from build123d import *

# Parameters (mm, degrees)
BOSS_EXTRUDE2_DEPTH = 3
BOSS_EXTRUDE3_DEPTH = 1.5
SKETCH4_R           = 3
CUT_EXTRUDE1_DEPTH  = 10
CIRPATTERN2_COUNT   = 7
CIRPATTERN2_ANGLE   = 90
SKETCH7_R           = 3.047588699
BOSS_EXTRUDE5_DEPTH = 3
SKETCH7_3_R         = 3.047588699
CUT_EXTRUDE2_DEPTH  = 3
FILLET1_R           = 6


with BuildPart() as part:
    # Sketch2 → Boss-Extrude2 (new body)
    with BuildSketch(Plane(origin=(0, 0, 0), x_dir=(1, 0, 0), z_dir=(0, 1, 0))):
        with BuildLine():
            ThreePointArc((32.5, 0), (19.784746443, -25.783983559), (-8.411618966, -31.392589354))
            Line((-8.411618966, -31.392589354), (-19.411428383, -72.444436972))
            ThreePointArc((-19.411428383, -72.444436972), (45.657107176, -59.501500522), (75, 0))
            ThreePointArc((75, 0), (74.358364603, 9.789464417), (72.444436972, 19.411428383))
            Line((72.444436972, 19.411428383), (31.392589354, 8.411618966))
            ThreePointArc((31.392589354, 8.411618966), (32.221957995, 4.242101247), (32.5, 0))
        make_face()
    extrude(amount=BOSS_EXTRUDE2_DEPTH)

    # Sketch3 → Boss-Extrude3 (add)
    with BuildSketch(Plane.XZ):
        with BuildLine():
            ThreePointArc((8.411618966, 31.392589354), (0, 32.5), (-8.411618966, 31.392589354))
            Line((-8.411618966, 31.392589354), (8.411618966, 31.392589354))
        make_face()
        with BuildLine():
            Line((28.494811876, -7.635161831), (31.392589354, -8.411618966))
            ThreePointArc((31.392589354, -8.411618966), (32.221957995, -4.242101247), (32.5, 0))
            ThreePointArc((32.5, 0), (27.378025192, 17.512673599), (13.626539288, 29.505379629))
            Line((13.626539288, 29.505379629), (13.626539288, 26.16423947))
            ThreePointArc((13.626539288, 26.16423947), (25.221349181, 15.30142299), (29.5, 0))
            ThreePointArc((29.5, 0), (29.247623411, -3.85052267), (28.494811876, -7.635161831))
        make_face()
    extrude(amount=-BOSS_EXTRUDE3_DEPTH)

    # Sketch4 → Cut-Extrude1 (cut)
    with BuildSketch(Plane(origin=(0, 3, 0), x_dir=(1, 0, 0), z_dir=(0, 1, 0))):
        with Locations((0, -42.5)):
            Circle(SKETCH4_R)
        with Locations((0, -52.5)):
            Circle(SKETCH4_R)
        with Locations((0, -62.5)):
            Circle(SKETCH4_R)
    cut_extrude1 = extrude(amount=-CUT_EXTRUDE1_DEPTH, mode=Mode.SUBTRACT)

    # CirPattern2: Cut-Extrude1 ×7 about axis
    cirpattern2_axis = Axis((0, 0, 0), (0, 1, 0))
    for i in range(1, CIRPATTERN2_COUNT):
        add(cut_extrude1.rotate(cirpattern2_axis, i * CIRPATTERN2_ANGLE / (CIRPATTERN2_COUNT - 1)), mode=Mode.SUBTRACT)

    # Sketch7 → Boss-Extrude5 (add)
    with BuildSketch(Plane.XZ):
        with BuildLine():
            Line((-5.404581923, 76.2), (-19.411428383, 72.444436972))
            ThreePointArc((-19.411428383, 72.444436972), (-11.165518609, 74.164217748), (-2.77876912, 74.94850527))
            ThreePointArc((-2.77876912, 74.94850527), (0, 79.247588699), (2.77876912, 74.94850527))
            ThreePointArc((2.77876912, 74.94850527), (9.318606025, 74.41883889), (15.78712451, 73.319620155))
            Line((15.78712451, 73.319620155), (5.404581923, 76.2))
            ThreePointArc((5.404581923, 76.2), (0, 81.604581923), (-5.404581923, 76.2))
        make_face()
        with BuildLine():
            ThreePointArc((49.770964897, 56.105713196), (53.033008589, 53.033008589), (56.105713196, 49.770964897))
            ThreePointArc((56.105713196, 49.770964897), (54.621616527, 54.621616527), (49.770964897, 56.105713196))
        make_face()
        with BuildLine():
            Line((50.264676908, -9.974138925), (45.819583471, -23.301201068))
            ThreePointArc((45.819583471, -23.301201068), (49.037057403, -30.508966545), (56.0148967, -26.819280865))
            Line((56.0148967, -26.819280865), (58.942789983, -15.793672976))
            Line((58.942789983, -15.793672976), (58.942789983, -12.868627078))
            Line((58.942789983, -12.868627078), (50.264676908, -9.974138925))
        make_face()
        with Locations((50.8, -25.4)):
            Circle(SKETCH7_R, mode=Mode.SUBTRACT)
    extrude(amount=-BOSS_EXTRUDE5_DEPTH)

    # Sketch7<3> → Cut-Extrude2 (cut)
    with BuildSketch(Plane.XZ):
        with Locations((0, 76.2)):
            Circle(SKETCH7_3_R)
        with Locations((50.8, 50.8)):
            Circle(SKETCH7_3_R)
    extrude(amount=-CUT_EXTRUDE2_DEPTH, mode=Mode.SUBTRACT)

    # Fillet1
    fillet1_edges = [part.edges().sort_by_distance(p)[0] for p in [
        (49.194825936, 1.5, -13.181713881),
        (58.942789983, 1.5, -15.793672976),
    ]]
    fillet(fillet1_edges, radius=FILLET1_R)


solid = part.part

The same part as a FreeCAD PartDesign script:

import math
import FreeCAD as App
import Part
import Sketcher
from FreeCAD import Vector
Q = App.Units.Quantity


def edges_at(feature, points):
    """Names of the edges that pass closest to the given points."""
    edges = feature.Shape.Edges
    near = lambda p: min(range(len(edges)), key=lambda i: edges[i].distToShape(Part.Vertex(*p))[0])
    return sorted({f"Edge{near(p) + 1}" for p in points})

doc = App.newDocument("Part")
params = doc.addObject("Spreadsheet::Sheet", "Params")
for row, (alias, value) in enumerate([
    ("sketch1_radius", "75 mm"),
    ("sketch1_radius2", "32.5 mm"),
    ("pad1_length", "3 mm"),
    ("sketch2_radius", "32.5 mm"),
    ("sketch2_radius2", "29.5 mm"),
    ("pad2_length", "1.5 mm"),
    ("sketch3_diameter", "6 mm"),
    ("pocket1_length", "10 mm"),
    ("sketch4_radius", "75 mm"),
    ("pad3_length", "3 mm"),
    ("pocket2_length", "3 mm"),
    ("fillet_radius", "6 mm"),
], start=1):
    params.set(f"A{row}", alias)
    params.set(f"B{row}", "=" + value)
    params.setAlias(f"B{row}", alias)

body = doc.addObject("PartDesign::Body", "Body")

# Sketch on XZ plane
sketch1 = body.newObject("Sketcher::SketchObject", "Sketch")
sketch1.AttachmentSupport = (doc.getObject("XZ_Plane"), [""])
sketch1.MapMode = "FlatFace"
sketch1.addGeometry(Part.ArcOfCircle(Part.Circle(Vector(0, 0, 0), Vector(0, 0, 1), 32), math.radians(0), math.radians(105)), False)
sketch1.addGeometry(Part.LineSegment(Vector(-8, 31, 0), Vector(-19, 72, 0)), False)
sketch1.addGeometry(Part.ArcOfCircle(Part.Circle(Vector(0, 0, 0), Vector(0, 0, 1), 75), math.radians(0), math.radians(105)), False)
sketch1.addGeometry(Part.ArcOfCircle(Part.Circle(Vector(0, 0, 0), Vector(0, 0, 1), 75), math.radians(-15), math.radians(0)), False)
sketch1.addGeometry(Part.LineSegment(Vector(72, -19, 0), Vector(31, -8, 0)), False)
sketch1.addGeometry(Part.ArcOfCircle(Part.Circle(Vector(0, 0, 0), Vector(0, 0, 1), 32), math.radians(-15), math.radians(0)), False)
sketch1.addConstraint(Sketcher.Constraint("Coincident", 0, 2, 1, 1))
sketch1.addConstraint(Sketcher.Constraint("Coincident", 1, 2, 2, 2))
sketch1.addConstraint(Sketcher.Constraint("Tangent", 2, 1, 3, 2))
sketch1.addConstraint(Sketcher.Constraint("Coincident", 3, 1, 4, 1))
sketch1.addConstraint(Sketcher.Constraint("Coincident", 4, 2, 5, 1))
sketch1.addConstraint(Sketcher.Constraint("Tangent", 5, 2, 0, 1))
sketch1.addConstraint(Sketcher.Constraint("Coincident", 0, 3, -1, 1))
sketch1.addConstraint(Sketcher.Constraint("Coincident", 2, 3, -1, 1))
sketch1.addConstraint(Sketcher.Constraint("Equal", 2, 3))
sketch1.addConstraint(Sketcher.Constraint("Equal", 0, 5))
sketch1.addConstraint(Sketcher.Constraint("PointOnObject", 2, 1, -1))
sketch1.addConstraint(Sketcher.Constraint("PointOnObject", 5, 2, -1))
sketch1.addConstraint(Sketcher.Constraint("Radius", 2, Q("75 mm")))
sketch1.addConstraint(Sketcher.Constraint("Radius", 0, Q("32.5 mm")))
sketch1.addConstraint(Sketcher.Constraint("Angle", 1, Q("105 deg")))
sketch1.addConstraint(Sketcher.Constraint("Angle", 4, Q("165 deg")))
sketch1.addConstraint(Sketcher.Constraint("DistanceX", 0, 2, -1, 1, Q("8.411619 mm")))
sketch1.addConstraint(Sketcher.Constraint("DistanceY", 3, 1, -1, 1, Q("19.411428 mm")))
sketch1.setExpression("Constraints[12]", "Params.sketch1_radius")
sketch1.setExpression("Constraints[13]", "Params.sketch1_radius2")
pad1 = body.newObject("PartDesign::Pad", "Pad")
pad1.Profile = sketch1
pad1.setExpression("Length", "Params.pad1_length")
pad1.Reversed = True

# Sketch on XZ plane
sketch2 = body.newObject("Sketcher::SketchObject", "Sketch001")
sketch2.AttachmentSupport = (doc.getObject("XZ_Plane"), [""])
sketch2.MapMode = "FlatFace"
sketch2.addGeometry(Part.ArcOfCircle(Part.Circle(Vector(0, 0, 0), Vector(0, 0, 1), 32.5), math.radians(75), math.radians(105)), False)
sketch2.addGeometry(Part.LineSegment(Vector(-8.4, 31.4, 0), Vector(8.4, 31.4, 0)), False)
sketch2.addGeometry(Part.LineSegment(Vector(28.5, -7.6, 0), Vector(31.4, -8.4, 0)), False)
sketch2.addGeometry(Part.ArcOfCircle(Part.Circle(Vector(0, 0, 0), Vector(0, 0, 1), 32.5), math.radians(-15), math.radians(0)), False)
sketch2.addGeometry(Part.ArcOfCircle(Part.Circle(Vector(0, 0, 0), Vector(0, 0, 1), 32.5), math.radians(0), math.radians(65)), False)
sketch2.addGeometry(Part.LineSegment(Vector(13.6, 29.5, 0), Vector(13.6, 26.2, 0)), False)
sketch2.addGeometry(Part.ArcOfCircle(Part.Circle(Vector(0, 0, 0), Vector(0, 0, 1), 29.5), math.radians(0), math.radians(62)), False)
sketch2.addGeometry(Part.ArcOfCircle(Part.Circle(Vector(0, 0, 0), Vector(0, 0, 1), 29.5), math.radians(-15), math.radians(0)), False)
sketch2.addConstraint(Sketcher.Constraint("Coincident", 0, 1, 1, 2))
sketch2.addConstraint(Sketcher.Constraint("Coincident", 1, 1, 0, 2))
sketch2.addConstraint(Sketcher.Constraint("Coincident", 2, 2, 3, 1))
sketch2.addConstraint(Sketcher.Constraint("Tangent", 3, 2, 4, 1))
sketch2.addConstraint(Sketcher.Constraint("Coincident", 4, 2, 5, 1))
sketch2.addConstraint(Sketcher.Constraint("Coincident", 5, 2, 6, 2))
sketch2.addConstraint(Sketcher.Constraint("Tangent", 6, 1, 7, 2))
sketch2.addConstraint(Sketcher.Constraint("Coincident", 7, 1, 2, 1))
sketch2.addConstraint(Sketcher.Constraint("Horizontal", 1))
sketch2.addConstraint(Sketcher.Constraint("Vertical", 5))
sketch2.addConstraint(Sketcher.Constraint("Coincident", 0, 3, -1, 1))
sketch2.addConstraint(Sketcher.Constraint("Coincident", 3, 3, -1, 1))
sketch2.addConstraint(Sketcher.Constraint("Coincident", 6, 3, -1, 1))
sketch2.addConstraint(Sketcher.Constraint("Equal", 0, 3))
sketch2.addConstraint(Sketcher.Constraint("Equal", 3, 4))
sketch2.addConstraint(Sketcher.Constraint("Equal", 6, 7))
sketch2.addConstraint(Sketcher.Constraint("PointOnObject", 3, 2, -1))
sketch2.addConstraint(Sketcher.Constraint("PointOnObject", 6, 1, -1))
sketch2.addConstraint(Sketcher.Constraint("Radius", 0, Q("32.5 mm")))
sketch2.addConstraint(Sketcher.Constraint("Radius", 6, Q("29.5 mm")))
sketch2.addConstraint(Sketcher.Constraint("Angle", 2, Q("-15 deg")))
sketch2.addConstraint(Sketcher.Constraint("DistanceY", 5, 2, 5, 1, Q("3.34114 mm")))
sketch2.addConstraint(Sketcher.Constraint("DistanceX", 1, 1, 1, 2, Q("16.823238 mm")))
sketch2.addConstraint(Sketcher.Constraint("DistanceX", -1, 1, 2, 2, Q("31.392589 mm")))
sketch2.setExpression("Constraints[18]", "Params.sketch2_radius")
sketch2.setExpression("Constraints[19]", "Params.sketch2_radius2")
pad2 = body.newObject("PartDesign::Pad", "Pad001")
pad2.Profile = sketch2
pad2.setExpression("Length", "Params.pad2_length")
pad2.Reversed = True

# Sketch on XZ plane
sketch3 = body.newObject("Sketcher::SketchObject", "Sketch002")
sketch3.AttachmentSupport = (doc.getObject("XZ_Plane"), [""])
sketch3.MapMode = "FlatFace"
sketch3.AttachmentOffset = App.Placement(Vector(0, 0, -3), App.Rotation())
sketch3.addGeometry(Part.Circle(Vector(0, 42.5, 0), Vector(0, 0, 1), 3), False)
sketch3.addGeometry(Part.Circle(Vector(0, 52.5, 0), Vector(0, 0, 1), 3), False)
sketch3.addGeometry(Part.Circle(Vector(0, 62.5, 0), Vector(0, 0, 1), 3), False)
sketch3.addConstraint(Sketcher.Constraint("Equal", 0, 1))
sketch3.addConstraint(Sketcher.Constraint("Equal", 1, 2))
sketch3.addConstraint(Sketcher.Constraint("PointOnObject", 0, 3, -2))
sketch3.addConstraint(Sketcher.Constraint("PointOnObject", 1, 3, -2))
sketch3.addConstraint(Sketcher.Constraint("PointOnObject", 2, 3, -2))
sketch3.addConstraint(Sketcher.Constraint("Diameter", 0, Q("6 mm")))
sketch3.addConstraint(Sketcher.Constraint("DistanceY", 0, 3, 1, 3, Q("10 mm")))
sketch3.addConstraint(Sketcher.Constraint("DistanceY", 1, 3, 2, 3, Q("10 mm")))
sketch3.addConstraint(Sketcher.Constraint("DistanceY", -1, 1, 0, 3, Q("42.5 mm")))
sketch3.setExpression("Constraints[5]", "Params.sketch3_diameter")
pocket1 = body.newObject("PartDesign::Pocket", "Pocket")
pocket1.Profile = sketch3
pocket1.setExpression("Length", "Params.pocket1_length")
pocket1.Reversed = True
doc.recompute()

polarpattern = body.newObject("PartDesign::PolarPattern", "PolarPattern")
polarpattern.Originals = [pocket1]
polarpattern.Axis = (doc.getObject("Y_Axis"), [""])
polarpattern.Angle = 90
polarpattern.Occurrences = 7
body.Tip = polarpattern

# Sketch on XZ plane
sketch4 = body.newObject("Sketcher::SketchObject", "Sketch003")
sketch4.AttachmentSupport = (doc.getObject("XZ_Plane"), [""])
sketch4.MapMode = "FlatFace"
sketch4.addGeometry(Part.LineSegment(Vector(-5.4, 76.2, 0), Vector(-19.4, 72.4, 0)), False)
sketch4.addGeometry(Part.ArcOfCircle(Part.Circle(Vector(0, 0, 0), Vector(0, 0, 1), 75), math.radians(92.12), math.radians(105)), False)
sketch4.addGeometry(Part.ArcOfCircle(Part.Circle(Vector(0, 76.2, 0), Vector(0, 0, 1), 3), math.radians(-24), math.radians(204)), False)
sketch4.addGeometry(Part.ArcOfCircle(Part.Circle(Vector(0, 0, 0), Vector(0, 0, 1), 75), math.radians(77.85), math.radians(87.88)), False)
sketch4.addGeometry(Part.LineSegment(Vector(15.8, 73.3, 0), Vector(5.4, 76.2, 0)), False)
sketch4.addGeometry(Part.ArcOfCircle(Part.Circle(Vector(0, 76.2, 0), Vector(0, 0, 1), 5.4), math.radians(0), math.radians(180)), False)
sketch4.addGeometry(Part.ArcOfCircle(Part.Circle(Vector(0, 0, 0), Vector(0, 0, 1), 75), math.radians(41.58), math.radians(48.42)), False)
sketch4.addGeometry(Part.ArcOfCircle(Part.Circle(Vector(50.8, 50.8, 0), Vector(0, 0, 1), 5.4), math.radians(-11), math.radians(101)), False)
sketch4.addGeometry(Part.LineSegment(Vector(50.3, -10, 0), Vector(45.8, -23.3, 0)), False)
sketch4.addGeometry(Part.ArcOfCircle(Part.Circle(Vector(50.8, -25.4, 0), Vector(0, 0, 1), 5.4), math.radians(157), math.radians(345)), False)
sketch4.addGeometry(Part.LineSegment(Vector(56, -26.8, 0), Vector(58.9, -15.8, 0)), False)
sketch4.addGeometry(Part.LineSegment(Vector(58.9, -15.8, 0), Vector(58.9, -12.9, 0)), False)
sketch4.addGeometry(Part.LineSegment(Vector(58.9, -12.9, 0), Vector(50.3, -10, 0)), False)
sketch4.addGeometry(Part.Circle(Vector(50.8, -25.4, 0), Vector(0, 0, 1), 3), False)
sketch4.addConstraint(Sketcher.Constraint("Coincident", 0, 2, 1, 2))
sketch4.addConstraint(Sketcher.Constraint("Coincident", 1, 1, 2, 2))
sketch4.addConstraint(Sketcher.Constraint("Coincident", 2, 1, 3, 2))
sketch4.addConstraint(Sketcher.Constraint("Coincident", 3, 1, 4, 1))
sketch4.addConstraint(Sketcher.Constraint("Coincident", 4, 2, 5, 1))
sketch4.addConstraint(Sketcher.Constraint("Coincident", 5, 2, 0, 1))
sketch4.addConstraint(Sketcher.Constraint("Coincident", 6, 1, 7, 1))
sketch4.addConstraint(Sketcher.Constraint("Coincident", 7, 2, 6, 2))
sketch4.addConstraint(Sketcher.Constraint("Coincident", 8, 2, 9, 1))
sketch4.addConstraint(Sketcher.Constraint("Coincident", 9, 2, 10, 1))
sketch4.addConstraint(Sketcher.Constraint("Coincident", 10, 2, 11, 1))
sketch4.addConstraint(Sketcher.Constraint("Coincident", 11, 2, 12, 1))
sketch4.addConstraint(Sketcher.Constraint("Coincident", 12, 2, 8, 1))
sketch4.addConstraint(Sketcher.Constraint("Vertical", 11))
sketch4.addConstraint(Sketcher.Constraint("Coincident", 1, 3, -1, 1))
sketch4.addConstraint(Sketcher.Constraint("Coincident", 3, 3, -1, 1))
sketch4.addConstraint(Sketcher.Constraint("Coincident", 6, 3, -1, 1))
sketch4.addConstraint(Sketcher.Constraint("Coincident", 5, 3, 2, 3))
sketch4.addConstraint(Sketcher.Constraint("Coincident", 13, 3, 9, 3))
sketch4.addConstraint(Sketcher.Constraint("Equal", 1, 3))
sketch4.addConstraint(Sketcher.Constraint("Equal", 3, 6))
sketch4.addConstraint(Sketcher.Constraint("Equal", 5, 7))
sketch4.addConstraint(Sketcher.Constraint("Equal", 7, 9))
sketch4.addConstraint(Sketcher.Constraint("Equal", 2, 13))
sketch4.addConstraint(Sketcher.Constraint("Symmetric", 4, 2, 5, 2, -2))
sketch4.addConstraint(Sketcher.Constraint("Perpendicular", 8, 12))
sketch4.addConstraint(Sketcher.Constraint("Horizontal", 5, 3, 4, 2))
sketch4.addConstraint(Sketcher.Constraint("Vertical", 7, 3, 9, 3))
sketch4.addConstraint(Sketcher.Constraint("Radius", 1, Q("75 mm")))
sketch4.addConstraint(Sketcher.Constraint("DistanceY", -1, 1, 2, 3, Q("76.2 mm")))
sketch4.addConstraint(Sketcher.Constraint("DistanceX", -1, 1, 7, 3, Q("50.8 mm")))
sketch4.addConstraint(Sketcher.Constraint("DistanceY", -1, 1, 7, 3, Q("50.8 mm")))
sketch4.addConstraint(Sketcher.Constraint("DistanceY", 9, 3, -1, 1, Q("25.4 mm")))
sketch4.addConstraint(Sketcher.Constraint("Radius", 2, Q("3.047589 mm")))
sketch4.addConstraint(Sketcher.Constraint("Radius", 5, Q("5.404582 mm")))
sketch4.addConstraint(Sketcher.Constraint("Distance", 12, Q("9.148099 mm")))
sketch4.addConstraint(Sketcher.Constraint("DistanceY", 8, 2, -1, 1, Q("23.301201 mm")))
sketch4.addConstraint(Sketcher.Constraint("DistanceY", 11, 1, 11, 2, Q("2.925046 mm")))
sketch4.addConstraint(Sketcher.Constraint("DistanceX", 0, 2, -1, 1, Q("19.411428 mm")))
sketch4.addConstraint(Sketcher.Constraint("DistanceY", -1, 1, 3, 1, Q("73.31962 mm")))
sketch4.addConstraint(Sketcher.Constraint("DistanceY", 9, 2, -1, 1, Q("26.819281 mm")))
sketch4.addConstraint(Sketcher.Constraint("DistanceX", -1, 1, 10, 2, Q("58.94279 mm")))
sketch4.addConstraint(Sketcher.Constraint("DistanceY", 12, 2, -1, 1, Q("9.974139 mm")))
sketch4.setExpression("Constraints[28]", "Params.sketch4_radius")
pad3 = body.newObject("PartDesign::Pad", "Pad002")
pad3.Profile = sketch4
pad3.setExpression("Length", "Params.pad3_length")
pad3.Reversed = True

# Sketch on XZ plane
sketch5 = body.newObject("Sketcher::SketchObject", "Sketch004")
sketch5.AttachmentSupport = (doc.getObject("XZ_Plane"), [""])
sketch5.MapMode = "FlatFace"
sketch5.addGeometry(Part.Circle(Vector(0, 76.2, 0), Vector(0, 0, 1), 3), False)
sketch5.addGeometry(Part.Circle(Vector(50.8, 50.8, 0), Vector(0, 0, 1), 3), False)
sketch5.addConstraint(Sketcher.Constraint("Equal", 0, 1))
sketch5.addConstraint(Sketcher.Constraint("PointOnObject", 0, 3, -2))
sketch5.addConstraint(Sketcher.Constraint("DistanceY", -1, 1, 0, 3, Q("76.2 mm")))
sketch5.addConstraint(Sketcher.Constraint("DistanceX", -1, 1, 1, 3, Q("50.8 mm")))
sketch5.addConstraint(Sketcher.Constraint("DistanceY", -1, 1, 1, 3, Q("50.8 mm")))
sketch5.addConstraint(Sketcher.Constraint("Diameter", 0, Q("6.095177 mm")))
pocket2 = body.newObject("PartDesign::Pocket", "Pocket001")
pocket2.Profile = sketch5
pocket2.setExpression("Length", "Params.pocket2_length")
doc.recompute()

fillet = body.newObject("PartDesign::Fillet", "Fillet")
fillet.Base = (pocket2, edges_at(pocket2, [(49.195, 1.5, -13.182), (58.943, 1.5, -15.794)]))
fillet.setExpression("Radius", "Params.fillet_radius")

doc.recompute()
